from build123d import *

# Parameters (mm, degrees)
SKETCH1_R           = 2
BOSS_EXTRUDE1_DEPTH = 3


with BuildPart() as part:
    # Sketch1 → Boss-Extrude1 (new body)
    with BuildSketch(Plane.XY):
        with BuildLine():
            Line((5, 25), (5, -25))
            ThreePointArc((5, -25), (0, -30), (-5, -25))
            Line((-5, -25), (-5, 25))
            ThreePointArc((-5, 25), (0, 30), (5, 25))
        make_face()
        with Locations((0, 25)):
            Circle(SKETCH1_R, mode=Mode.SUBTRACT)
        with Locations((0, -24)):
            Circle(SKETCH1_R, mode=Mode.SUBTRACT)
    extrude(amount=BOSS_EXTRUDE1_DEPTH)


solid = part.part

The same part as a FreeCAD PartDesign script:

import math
import FreeCAD as App
import Part
import Sketcher

doc = App.newDocument("Part")
body = doc.addObject("PartDesign::Body", "Body")

sketch1 = body.newObject("Sketcher::SketchObject", "Sketch")
sketch1.AttachmentSupport = (doc.getObject("XY_Plane"), [""])
sketch1.MapMode = "FlatFace"
sketch1.addGeometry([
    Part.LineSegment(App.Vector(5, -25, 0), App.Vector(5, 25, 0)),
    Part.ArcOfCircle(Part.Circle(App.Vector(0, 25, 0), App.Vector(0, 0, 1), 5), math.radians(0), math.radians(180)),
    Part.LineSegment(App.Vector(-5, 25, 0), App.Vector(-5, -25, 0)),
    Part.ArcOfCircle(Part.Circle(App.Vector(0, -25, 0), App.Vector(0, 0, 1), 5), math.radians(180), math.radians(360)),
    Part.Circle(App.Vector(0, -24, 0), App.Vector(0, 0, 1), 2),
    Part.Circle(App.Vector(0, 25, 0), App.Vector(0, 0, 1), 2),
], False)
sketch1.addConstraint([
    Sketcher.Constraint("Tangent", 0, 2, 1, 1),
    Sketcher.Constraint("Tangent", 1, 2, 2, 1),
    Sketcher.Constraint("Tangent", 2, 2, 3, 1),
    Sketcher.Constraint("Tangent", 3, 2, 0, 1),
    Sketcher.Constraint("Vertical", 0),
    Sketcher.Constraint("Vertical", 2),
    Sketcher.Constraint("Coincident", 5, 3, 1, 3),
    Sketcher.Constraint("Equal", 4, 5),
    Sketcher.Constraint("Symmetric", 1, 3, 3, 3, -1, 1),
    Sketcher.Constraint("PointOnObject", 4, 3, -2),
    Sketcher.Constraint("Diameter", 4, 4.0),
    Sketcher.Constraint("Radius", 1, 5.0),
    Sketcher.Constraint("DistanceY", 0, 1, 0, 2, 50.0),
    Sketcher.Constraint("DistanceY", 4, 3, -1, 1, 24.0),
])
pad1 = body.newObject("PartDesign::Pad", "Pad")
pad1.Profile = sketch1
pad1.Length = 3

doc.recompute()
